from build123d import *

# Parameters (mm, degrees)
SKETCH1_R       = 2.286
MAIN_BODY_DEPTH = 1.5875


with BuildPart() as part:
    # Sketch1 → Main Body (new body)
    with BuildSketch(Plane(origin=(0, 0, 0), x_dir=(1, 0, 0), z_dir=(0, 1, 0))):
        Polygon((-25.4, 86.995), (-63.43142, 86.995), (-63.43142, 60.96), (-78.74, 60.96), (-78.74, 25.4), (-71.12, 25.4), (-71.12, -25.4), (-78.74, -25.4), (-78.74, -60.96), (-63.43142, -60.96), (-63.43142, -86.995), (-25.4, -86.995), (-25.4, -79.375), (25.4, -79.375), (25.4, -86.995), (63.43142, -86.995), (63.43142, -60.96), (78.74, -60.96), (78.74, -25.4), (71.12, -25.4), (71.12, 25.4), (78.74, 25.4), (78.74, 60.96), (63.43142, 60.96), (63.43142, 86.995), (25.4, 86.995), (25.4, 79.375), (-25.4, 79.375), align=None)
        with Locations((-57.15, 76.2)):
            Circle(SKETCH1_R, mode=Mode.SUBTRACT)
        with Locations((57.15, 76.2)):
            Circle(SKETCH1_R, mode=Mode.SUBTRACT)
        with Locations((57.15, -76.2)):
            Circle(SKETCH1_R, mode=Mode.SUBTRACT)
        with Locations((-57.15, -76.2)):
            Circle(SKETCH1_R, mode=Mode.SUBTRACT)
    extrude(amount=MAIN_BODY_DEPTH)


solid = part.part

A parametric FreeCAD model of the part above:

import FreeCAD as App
import Part
import Sketcher
from FreeCAD import Vector
Q = App.Units.Quantity

doc = App.newDocument("Part")
body = doc.addObject("PartDesign::Body", "Body")

# Sketch on XZ plane
sketch1 = body.newObject("Sketcher::SketchObject", "Sketch")
sketch1.AttachmentSupport = (doc.getObject("XZ_Plane"), [""])
sketch1.MapMode = "FlatFace"
sketch1.addGeometry([
    Part.LineSegment(Vector(-25.4, -87, 0), Vector(-63.4, -87, 0)),  # 0
    Part.LineSegment(Vector(-63.4, -87, 0), Vector(-63.4, -61, 0)),  # 1
    Part.LineSegment(Vector(-63.4, -61, 0), Vector(-78.7, -61, 0)),  # 2
    Part.LineSegment(Vector(-78.7, -61, 0), Vector(-78.7, -25.4, 0)),  # 3
    Part.LineSegment(Vector(-78.7, -25.4, 0), Vector(-71.1, -25.4, 0)),  # 4
    Part.LineSegment(Vector(-71.1, -25.4, 0), Vector(-71.1, 25.4, 0)),  # 5
    Part.LineSegment(Vector(-71.1, 25.4, 0), Vector(-78.7, 25.4, 0)),  # 6
    Part.LineSegment(Vector(-78.7, 25.4, 0), Vector(-78.7, 61, 0)),  # 7
    Part.LineSegment(Vector(-78.7, 61, 0), Vector(-63.4, 61, 0)),  # 8
    Part.LineSegment(Vector(-63.4, 61, 0), Vector(-63.4, 87, 0)),  # 9
    Part.LineSegment(Vector(-63.4, 87, 0), Vector(-25.4, 87, 0)),  # 10
    Part.LineSegment(Vector(-25.4, 87, 0), Vector(-25.4, 79.4, 0)),  # 11
    Part.LineSegment(Vector(-25.4, 79.4, 0), Vector(25.4, 79.4, 0)),  # 12
    Part.LineSegment(Vector(25.4, 79.4, 0), Vector(25.4, 87, 0)),  # 13
    Part.LineSegment(Vector(25.4, 87, 0), Vector(63.4, 87, 0)),  # 14
    Part.LineSegment(Vector(63.4, 87, 0), Vector(63.4, 61, 0)),  # 15
    Part.LineSegment(Vector(63.4, 61, 0), Vector(78.7, 61, 0)),  # 16
    Part.LineSegment(Vector(78.7, 61, 0), Vector(78.7, 25.4, 0)),  # 17
    Part.LineSegment(Vector(78.7, 25.4, 0), Vector(71.1, 25.4, 0)),  # 18
    Part.LineSegment(Vector(71.1, 25.4, 0), Vector(71.1, -25.4, 0)),  # 19
    Part.LineSegment(Vector(71.1, -25.4, 0), Vector(78.7, -25.4, 0)),  # 20
    Part.LineSegment(Vector(78.7, -25.4, 0), Vector(78.7, -61, 0)),  # 21
    Part.LineSegment(Vector(78.7, -61, 0), Vector(63.4, -61, 0)),  # 22
    Part.LineSegment(Vector(63.4, -61, 0), Vector(63.4, -87, 0)),  # 23
    Part.LineSegment(Vector(63.4, -87, 0), Vector(25.4, -87, 0)),  # 24
    Part.LineSegment(Vector(25.4, -87, 0), Vector(25.4, -79.4, 0)),  # 25
    Part.LineSegment(Vector(25.4, -79.4, 0), Vector(-25.4, -79.4, 0)),  # 26
    Part.LineSegment(Vector(-25.4, -79.4, 0), Vector(-25.4, -87, 0)),  # 27
    Part.Circle(Vector(-57.1, 76.2, 0), Vector(0, 0, 1), 2.3),  # 28
    Part.Circle(Vector(57.1, 76.2, 0), Vector(0, 0, 1), 2.3),  # 29
    Part.Circle(Vector(-57.1, -76.2, 0), Vector(0, 0, 1), 2.3),  # 30
    Part.Circle(Vector(57.1, -76.2, 0), Vector(0, 0, 1), 2.3),  # 31
], False)
sketch1.addConstraint([
    Sketcher.Constraint("Coincident", 0, 2, 1, 1),
    Sketcher.Constraint("Coincident", 1, 2, 2, 1),
    Sketcher.Constraint("Coincident", 2, 2, 3, 1),
    Sketcher.Constraint("Coincident", 3, 2, 4, 1),
    Sketcher.Constraint("Coincident", 4, 2, 5, 1),
    Sketcher.Constraint("Coincident", 5, 2, 6, 1),
    Sketcher.Constraint("Coincident", 6, 2, 7, 1),
    Sketcher.Constraint("Coincident", 7, 2, 8, 1),
    Sketcher.Constraint("Coincident", 8, 2, 9, 1),
    Sketcher.Constraint("Coincident", 9, 2, 10, 1),
    Sketcher.Constraint("Coincident", 10, 2, 11, 1),
    Sketcher.Constraint("Coincident", 11, 2, 12, 1),
    Sketcher.Constraint("Coincident", 12, 2, 13, 1),
    Sketcher.Constraint("Coincident", 13, 2, 14, 1),
    Sketcher.Constraint("Coincident", 14, 2, 15, 1),
    Sketcher.Constraint("Coincident", 15, 2, 16, 1),
    Sketcher.Constraint("Coincident", 16, 2, 17, 1),
    Sketcher.Constraint("Coincident", 17, 2, 18, 1),
    Sketcher.Constraint("Coincident", 18, 2, 19, 1),
    Sketcher.Constraint("Coincident", 19, 2, 20, 1),
    Sketcher.Constraint("Coincident", 20, 2, 21, 1),
    Sketcher.Constraint("Coincident", 21, 2, 22, 1),
    Sketcher.Constraint("Coincident", 22, 2, 23, 1),
    Sketcher.Constraint("Coincident", 23, 2, 24, 1),
    Sketcher.Constraint("Coincident", 24, 2, 25, 1),
    Sketcher.Constraint("Coincident", 25, 2, 26, 1),
    Sketcher.Constraint("Coincident", 26, 2, 27, 1),
    Sketcher.Constraint("Coincident", 27, 2, 0, 1),
    Sketcher.Constraint("Horizontal", 0),
    Sketcher.Constraint("Vertical", 1),
    Sketcher.Constraint("Horizontal", 2),
    Sketcher.Constraint("Vertical", 3),
    Sketcher.Constraint("Horizontal", 4),
    Sketcher.Constraint("Vertical", 5),
    Sketcher.Constraint("Horizontal", 6),
    Sketcher.Constraint("Vertical", 7),
    Sketcher.Constraint("Horizontal", 8),
    Sketcher.Constraint("Vertical", 9),
    Sketcher.Constraint("Horizontal", 10),
    Sketcher.Constraint("Vertical", 11),
    Sketcher.Constraint("Horizontal", 12),
    Sketcher.Constraint("Vertical", 13),
    Sketcher.Constraint("Horizontal", 14),
    Sketcher.Constraint("Vertical", 15),
    Sketcher.Constraint("Horizontal", 16),
    Sketcher.Constraint("Vertical", 17),
    Sketcher.Constraint("Horizontal", 18),
    Sketcher.Constraint("Vertical", 19),
    Sketcher.Constraint("Horizontal", 20),
    Sketcher.Constraint("Vertical", 21),
    Sketcher.Constraint("Horizontal", 22),
    Sketcher.Constraint("Vertical", 23),
    Sketcher.Constraint("Horizontal", 24),
    Sketcher.Constraint("Vertical", 25),
    Sketcher.Constraint("Horizontal", 26),
    Sketcher.Constraint("Vertical", 27),
    Sketcher.Constraint("Equal", 28, 29),
    Sketcher.Constraint("Equal", 29, 30),
    Sketcher.Constraint("Equal", 30, 31),
    Sketcher.Constraint("Symmetric", 29, 3, 30, 3, -1, 1),
    Sketcher.Constraint("Symmetric", 28, 3, 31, 3, -1, 1),
    Sketcher.Constraint("Symmetric", 0, 2, 14, 2, -1, 1),
    Sketcher.Constraint("Symmetric", 2, 2, 16, 2, -1, 1),
    Sketcher.Constraint("Symmetric", 4, 2, 18, 2, -1, 1),
    Sketcher.Constraint("Symmetric", 6, 2, 20, 2, -1, 1),
    Sketcher.Constraint("Symmetric", 8, 2, 22, 2, -1, 1),
    Sketcher.Constraint("Symmetric", 10, 2, 24, 2, -1, 1),
    Sketcher.Constraint("Symmetric", 12, 2, 26, 2, -1, 1),
    Sketcher.Constraint("Symmetric", 28, 3, 29, 3, -2),
    Sketcher.Constraint("Symmetric", 10, 2, 13, 2, -2),
    Sketcher.Constraint("Symmetric", 8, 2, 15, 2, -2),
    Sketcher.Constraint("Symmetric", 6, 2, 17, 2, -2),
    Sketcher.Constraint("Equal", 26, 5),
    Sketcher.Constraint("Equal", 20, 11),
    Sketcher.Constraint("Diameter", 28, Q("0.18 in")),
    Sketcher.Constraint("DistanceX", 12, 1, 12, 2, Q("2 in")),
    Sketcher.Constraint("DistanceX", 4, 1, 4, 2, Q("0.3 in")),
    Sketcher.Constraint("DistanceY", 3, 1, 3, 2, Q("1.4 in")),
    Sketcher.Constraint("DistanceY", -1, 1, 28, 3, Q("3 in")),
    Sketcher.Constraint("DistanceX", 2, 2, -1, 1, Q("3.1 in")),
    Sketcher.Constraint("DistanceX", 28, 3, 29, 3, Q("4.5 in")),
    Sketcher.Constraint("DistanceY", 1, 1, 1, 2, Q("1.025 in")),
    Sketcher.Constraint("DistanceX", 0, 2, 0, 1, Q("1.4973 in")),
])
pad1 = body.newObject("PartDesign::Pad", "Pad")
pad1.Profile = sketch1
pad1.Length = Q("0.0625 in")
pad1.Reversed = True

doc.recompute()
